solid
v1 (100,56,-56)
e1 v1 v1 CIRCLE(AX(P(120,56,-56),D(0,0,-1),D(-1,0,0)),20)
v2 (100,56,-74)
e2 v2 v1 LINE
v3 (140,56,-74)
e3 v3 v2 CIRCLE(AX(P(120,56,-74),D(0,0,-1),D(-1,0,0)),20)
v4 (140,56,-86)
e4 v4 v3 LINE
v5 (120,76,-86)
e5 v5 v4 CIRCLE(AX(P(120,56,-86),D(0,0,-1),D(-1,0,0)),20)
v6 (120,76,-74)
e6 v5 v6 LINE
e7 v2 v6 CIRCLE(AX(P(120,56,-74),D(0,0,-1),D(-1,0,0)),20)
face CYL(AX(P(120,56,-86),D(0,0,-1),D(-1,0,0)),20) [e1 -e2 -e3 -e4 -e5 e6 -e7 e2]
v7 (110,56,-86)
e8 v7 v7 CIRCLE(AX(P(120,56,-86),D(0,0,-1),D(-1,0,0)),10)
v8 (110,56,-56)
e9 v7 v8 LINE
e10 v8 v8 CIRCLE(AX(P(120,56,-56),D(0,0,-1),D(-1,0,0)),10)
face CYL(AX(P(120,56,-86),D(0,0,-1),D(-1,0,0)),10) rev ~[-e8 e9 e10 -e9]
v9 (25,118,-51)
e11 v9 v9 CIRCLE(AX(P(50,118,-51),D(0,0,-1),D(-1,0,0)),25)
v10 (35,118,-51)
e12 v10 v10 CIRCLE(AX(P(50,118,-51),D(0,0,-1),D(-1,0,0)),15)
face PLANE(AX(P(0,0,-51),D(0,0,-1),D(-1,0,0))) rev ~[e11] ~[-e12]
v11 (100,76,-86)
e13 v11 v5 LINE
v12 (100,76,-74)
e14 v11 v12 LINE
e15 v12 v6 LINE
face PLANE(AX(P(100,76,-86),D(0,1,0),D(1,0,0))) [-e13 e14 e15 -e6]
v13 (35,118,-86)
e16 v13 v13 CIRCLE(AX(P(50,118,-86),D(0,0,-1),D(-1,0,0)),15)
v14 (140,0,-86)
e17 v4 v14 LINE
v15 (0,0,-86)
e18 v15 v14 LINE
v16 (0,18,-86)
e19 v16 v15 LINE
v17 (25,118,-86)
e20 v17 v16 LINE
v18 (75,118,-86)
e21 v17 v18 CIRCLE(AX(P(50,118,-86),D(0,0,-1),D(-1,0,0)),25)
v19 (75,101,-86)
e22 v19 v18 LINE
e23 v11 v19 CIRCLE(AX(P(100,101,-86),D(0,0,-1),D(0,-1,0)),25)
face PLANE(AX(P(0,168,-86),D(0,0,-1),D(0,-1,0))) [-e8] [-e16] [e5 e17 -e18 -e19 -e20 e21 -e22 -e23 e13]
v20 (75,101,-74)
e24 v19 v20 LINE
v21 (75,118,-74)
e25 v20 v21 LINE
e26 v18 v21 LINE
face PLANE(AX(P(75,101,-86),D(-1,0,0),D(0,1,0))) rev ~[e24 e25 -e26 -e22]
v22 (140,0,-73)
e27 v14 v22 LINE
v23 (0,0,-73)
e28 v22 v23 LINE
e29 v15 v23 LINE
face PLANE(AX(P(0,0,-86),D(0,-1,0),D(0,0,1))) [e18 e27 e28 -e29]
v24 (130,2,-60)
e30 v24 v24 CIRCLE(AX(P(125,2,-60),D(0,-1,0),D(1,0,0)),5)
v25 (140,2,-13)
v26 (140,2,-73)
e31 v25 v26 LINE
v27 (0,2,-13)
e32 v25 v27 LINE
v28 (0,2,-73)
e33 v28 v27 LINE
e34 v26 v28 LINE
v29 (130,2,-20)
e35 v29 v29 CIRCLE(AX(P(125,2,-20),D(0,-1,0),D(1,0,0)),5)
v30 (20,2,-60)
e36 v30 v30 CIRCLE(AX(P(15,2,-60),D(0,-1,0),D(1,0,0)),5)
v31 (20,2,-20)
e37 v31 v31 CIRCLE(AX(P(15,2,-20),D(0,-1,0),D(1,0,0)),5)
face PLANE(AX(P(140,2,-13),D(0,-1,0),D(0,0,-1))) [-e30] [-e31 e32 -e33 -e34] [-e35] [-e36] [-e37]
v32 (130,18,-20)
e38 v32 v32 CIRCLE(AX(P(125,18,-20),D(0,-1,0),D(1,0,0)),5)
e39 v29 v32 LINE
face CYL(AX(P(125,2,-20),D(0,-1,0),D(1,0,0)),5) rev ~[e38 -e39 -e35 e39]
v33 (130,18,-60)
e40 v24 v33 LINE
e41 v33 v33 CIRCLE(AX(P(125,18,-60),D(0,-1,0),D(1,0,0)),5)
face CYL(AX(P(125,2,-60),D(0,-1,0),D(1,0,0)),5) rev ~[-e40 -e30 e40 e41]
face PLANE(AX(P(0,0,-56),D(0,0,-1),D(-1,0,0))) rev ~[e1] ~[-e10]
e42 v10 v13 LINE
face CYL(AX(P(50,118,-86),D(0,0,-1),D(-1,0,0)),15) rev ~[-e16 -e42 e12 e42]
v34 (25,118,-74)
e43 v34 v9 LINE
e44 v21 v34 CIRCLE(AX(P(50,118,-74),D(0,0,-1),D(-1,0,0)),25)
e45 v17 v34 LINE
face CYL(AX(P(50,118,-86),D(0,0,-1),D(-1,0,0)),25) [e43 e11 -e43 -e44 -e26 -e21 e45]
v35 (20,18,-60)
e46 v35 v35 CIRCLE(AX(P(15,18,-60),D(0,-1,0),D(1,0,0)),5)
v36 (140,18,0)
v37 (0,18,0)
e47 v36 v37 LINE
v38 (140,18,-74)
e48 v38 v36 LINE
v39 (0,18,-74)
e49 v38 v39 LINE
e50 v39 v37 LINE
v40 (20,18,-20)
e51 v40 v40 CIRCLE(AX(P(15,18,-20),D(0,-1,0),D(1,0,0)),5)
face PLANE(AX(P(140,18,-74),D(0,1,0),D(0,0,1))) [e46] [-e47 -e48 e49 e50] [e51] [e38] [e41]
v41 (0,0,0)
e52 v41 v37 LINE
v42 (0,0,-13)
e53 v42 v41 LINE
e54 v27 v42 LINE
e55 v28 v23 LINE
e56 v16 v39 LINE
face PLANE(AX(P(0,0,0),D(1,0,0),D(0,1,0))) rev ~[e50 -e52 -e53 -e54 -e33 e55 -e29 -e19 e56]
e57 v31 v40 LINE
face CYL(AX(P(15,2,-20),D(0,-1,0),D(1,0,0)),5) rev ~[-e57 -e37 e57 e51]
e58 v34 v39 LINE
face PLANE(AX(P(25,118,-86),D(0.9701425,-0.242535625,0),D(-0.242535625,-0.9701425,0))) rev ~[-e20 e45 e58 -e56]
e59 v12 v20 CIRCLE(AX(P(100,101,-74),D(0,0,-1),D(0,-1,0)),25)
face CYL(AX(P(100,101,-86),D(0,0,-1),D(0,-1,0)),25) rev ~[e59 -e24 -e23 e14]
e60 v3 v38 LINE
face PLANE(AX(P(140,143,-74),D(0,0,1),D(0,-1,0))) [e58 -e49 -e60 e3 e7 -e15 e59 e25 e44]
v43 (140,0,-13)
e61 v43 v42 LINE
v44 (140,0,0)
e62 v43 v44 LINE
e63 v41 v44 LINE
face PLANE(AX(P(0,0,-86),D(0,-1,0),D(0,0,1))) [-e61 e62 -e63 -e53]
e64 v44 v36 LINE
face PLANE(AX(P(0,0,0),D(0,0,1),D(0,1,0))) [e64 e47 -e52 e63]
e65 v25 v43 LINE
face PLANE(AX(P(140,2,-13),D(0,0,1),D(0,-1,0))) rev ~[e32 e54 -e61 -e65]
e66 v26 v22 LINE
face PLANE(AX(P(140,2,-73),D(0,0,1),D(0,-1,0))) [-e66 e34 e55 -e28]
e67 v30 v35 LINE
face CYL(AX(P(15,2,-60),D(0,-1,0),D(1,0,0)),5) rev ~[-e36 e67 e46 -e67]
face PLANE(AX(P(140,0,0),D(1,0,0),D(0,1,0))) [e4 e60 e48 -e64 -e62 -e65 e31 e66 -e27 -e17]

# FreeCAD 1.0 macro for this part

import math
import FreeCAD as App
import Part
import Sketcher

doc = App.newDocument("Part")
body = doc.addObject("PartDesign::Body", "Body")

# Sketch on YZ plane
sketch1 = body.newObject("Sketcher::SketchObject", "Sketch")
sketch1.AttachmentSupport = (doc.getObject("YZ_Plane"), [""])
sketch1.MapMode = "FlatFace"
sketch1.addGeometry([
    Part.LineSegment(App.Vector(168, 0, 0), App.Vector(0, 0, 0)),
    Part.LineSegment(App.Vector(0, 0, 0), App.Vector(0, -86, 0)),
    Part.LineSegment(App.Vector(0, -86, 0), App.Vector(168, -86, 0)),
    Part.LineSegment(App.Vector(168, -86, 0), App.Vector(168, 0, 0)),
], False)
sketch1.addConstraint([
    Sketcher.Constraint("Coincident", 0, 2, 1, 1),
    Sketcher.Constraint("Coincident", 1, 2, 2, 1),
    Sketcher.Constraint("Coincident", 2, 2, 3, 1),
    Sketcher.Constraint("Coincident", 3, 2, 0, 1),
    Sketcher.Constraint("Horizontal", 0),
    Sketcher.Constraint("Vertical", 1),
    Sketcher.Constraint("Horizontal", 2),
    Sketcher.Constraint("Vertical", 3),
    Sketcher.Constraint("Coincident", 0, 2, -1, 1),
    Sketcher.Constraint("DistanceX", 0, 2, 0, 1, 168.0),
    Sketcher.Constraint("DistanceY", 1, 2, 1, 1, 86.0),
])
pad1 = body.newObject("PartDesign::Pad", "Pad")
pad1.Profile = sketch1
pad1.Length = 140

# Sketch on YZ plane
sketch2 = body.newObject("Sketcher::SketchObject", "Sketch001")
sketch2.AttachmentSupport = (doc.getObject("YZ_Plane"), [""])
sketch2.MapMode = "FlatFace"
sketch2.AttachmentOffset = App.Placement(App.Vector(0, 0, 140), App.Rotation())
sketch2.addGeometry([
    Part.LineSegment(App.Vector(2, -13, 0), App.Vector(0, -13, 0)),
    Part.LineSegment(App.Vector(0, -13, 0), App.Vector(0, -73, 0)),
    Part.LineSegment(App.Vector(0, -73, 0), App.Vector(2, -73, 0)),
    Part.LineSegment(App.Vector(2, -73, 0), App.Vector(2, -13, 0)),
], False)
sketch2.addConstraint([
    Sketcher.Constraint("Coincident", 0, 2, 1, 1),
    Sketcher.Constraint("Coincident", 1, 2, 2, 1),
    Sketcher.Constraint("Coincident", 2, 2, 3, 1),
    Sketcher.Constraint("Coincident", 3, 2, 0, 1),
    Sketcher.Constraint("Horizontal", 0),
    Sketcher.Constraint("Vertical", 1),
    Sketcher.Constraint("Horizontal", 2),
    Sketcher.Constraint("Vertical", 3),
    Sketcher.Constraint("PointOnObject", 0, 2, -2),
    Sketcher.Constraint("DistanceX", 0, 2, 0, 1, 2.0),
    Sketcher.Constraint("DistanceY", 1, 2, 1, 1, 60.0),
    Sketcher.Constraint("DistanceY", 0, 2, -1, 1, 13.0),
])
pocket1 = body.newObject("PartDesign::Pocket", "Pocket")
pocket1.Profile = sketch2
pocket1.Length = 140

# Sketch on XY plane
sketch3 = body.newObject("Sketcher::SketchObject", "Sketch002")
sketch3.AttachmentSupport = (doc.getObject("XY_Plane"), [""])
sketch3.MapMode = "FlatFace"
sketch3.AttachmentOffset = App.Placement(App.Vector(0, 0, -86), App.Rotation())
sketch3.addGeometry([
    Part.LineSegment(App.Vector(140, 168, 0), App.Vector(140, 56, 0)),  # 0
    Part.ArcOfCircle(Part.Circle(App.Vector(120, 56, 0), App.Vector(0, 0, 1), 20), math.radians(0), math.radians(90)),  # 1
    Part.LineSegment(App.Vector(120, 76, 0), App.Vector(100, 76, 0)),  # 2
    Part.ArcOfCircle(Part.Circle(App.Vector(100, 101, 0), App.Vector(0, 0, 1), 25), math.radians(180), math.radians(270)),  # 3
    Part.LineSegment(App.Vector(75, 101, 0), App.Vector(75, 118, 0)),  # 4
    Part.ArcOfCircle(Part.Circle(App.Vector(50, 118, 0), App.Vector(0, 0, 1), 25), math.radians(0), math.radians(180)),  # 5
    Part.LineSegment(App.Vector(25, 118, 0), App.Vector(0, 18, 0)),  # 6
    Part.LineSegment(App.Vector(0, 18, 0), App.Vector(0, 168, 0)),  # 7
    Part.LineSegment(App.Vector(0, 168, 0), App.Vector(140, 168, 0)),  # 8
    Part.Circle(App.Vector(120, 56, 0), App.Vector(0, 0, 1), 10),  # 9
    Part.Circle(App.Vector(50, 118, 0), App.Vector(0, 0, 1), 15),  # 10
], False)
sketch3.addConstraint([
    Sketcher.Constraint("Tangent", 0, 2, 1, 1),
    Sketcher.Constraint("Tangent", 1, 2, 2, 1),
    Sketcher.Constraint("Tangent", 2, 2, 3, 2),
    Sketcher.Constraint("Tangent", 3, 1, 4, 1),
    Sketcher.Constraint("Tangent", 4, 2, 5, 1),
    Sketcher.Constraint("Coincident", 5, 2, 6, 1),
    Sketcher.Constraint("Coincident", 6, 2, 7, 1),
    Sketcher.Constraint("Coincident", 7, 2, 8, 1),
    Sketcher.Constraint("Coincident", 8, 2, 0, 1),
    Sketcher.Constraint("Vertical", 0),
    Sketcher.Constraint("Horizontal", 2),
    Sketcher.Constraint("Vertical", 4),
    Sketcher.Constraint("Vertical", 7),
    Sketcher.Constraint("Horizontal", 8),
    Sketcher.Constraint("Coincident", 9, 3, 1, 3),
    Sketcher.Constraint("Coincident", 10, 3, 5, 3),
    Sketcher.Constraint("Equal", 3, 5),
    Sketcher.Constraint("PointOnObject", 6, 2, -2),
    Sketcher.Constraint("Horizontal", 4, 2, 5, 2),
    Sketcher.Constraint("Diameter", 9, 20.0),
    Sketcher.Constraint("Diameter", 10, 30.0),
    Sketcher.Constraint("Radius", 1, 20.0),
    Sketcher.Constraint("Radius", 3, 25.0),
    Sketcher.Constraint("DistanceX", 2, 2, 2, 1, 20.0),
    Sketcher.Constraint("DistanceY", -1, 1, 1, 3, 56.0),
    Sketcher.Constraint("DistanceX", -1, 1, 5, 3, 50.0),
    Sketcher.Constraint("DistanceY", -1, 1, 5, 3, 118.0),
    Sketcher.Constraint("DistanceY", -1, 1, 6, 2, 18.0),
    Sketcher.Constraint("DistanceY", 5, 2, 7, 2, 50.0),
])
pocket2 = body.newObject("PartDesign::Pocket", "Pocket001")
pocket2.Profile = sketch3
pocket2.Length = 140
pocket2.Reversed = True

# Sketch on YZ plane
sketch4 = body.newObject("Sketcher::SketchObject", "Sketch003")
sketch4.AttachmentSupport = (doc.getObject("YZ_Plane"), [""])
sketch4.MapMode = "FlatFace"
sketch4.AttachmentOffset = App.Placement(App.Vector(0, 0, 140), App.Rotation())
sketch4.addGeometry([
    Part.LineSegment(App.Vector(18, 0, 0), App.Vector(18, -74, 0)),
    Part.LineSegment(App.Vector(18, -74, 0), App.Vector(143, -74, 0)),
    Part.LineSegment(App.Vector(143, -74, 0), App.Vector(143, 0, 0)),
    Part.LineSegment(App.Vector(143, 0, 0), App.Vector(18, 0, 0)),
], False)
sketch4.addConstraint([
    Sketcher.Constraint("Coincident", 0, 2, 1, 1),
    Sketcher.Constraint("Coincident", 1, 2, 2, 1),
    Sketcher.Constraint("Coincident", 2, 2, 3, 1),
    Sketcher.Constraint("Coincident", 3, 2, 0, 1),
    Sketcher.Constraint("Vertical", 0),
    Sketcher.Constraint("Horizontal", 1),
    Sketcher.Constraint("Vertical", 2),
    Sketcher.Constraint("Horizontal", 3),
    Sketcher.Constraint("PointOnObject", 2, 2, -1),
    Sketcher.Constraint("DistanceX", 1, 1, 1, 2, 125.0),
    Sketcher.Constraint("DistanceY", 0, 2, 0, 1, 74.0),
    Sketcher.Constraint("DistanceX", -1, 1, 0, 2, 18.0),
])
pocket3 = body.newObject("PartDesign::Pocket", "Pocket002")
pocket3.Profile = sketch4
pocket3.Length = 140

# Sketch on XY plane
sketch5 = body.newObject("Sketcher::SketchObject", "Sketch004")
sketch5.AttachmentSupport = (doc.getObject("XY_Plane"), [""])
sketch5.MapMode = "FlatFace"
sketch5.AttachmentOffset = App.Placement(App.Vector(0, 0, -86), App.Rotation())
sketch5.addGeometry([
    Part.Circle(App.Vector(50, 118, 0), App.Vector(0, 0, 1), 25),
    Part.Circle(App.Vector(50, 118, 0), App.Vector(0, 0, 1), 15),
], False)
sketch5.addConstraint([
    Sketcher.Constraint("Coincident", 1, 3, 0, 3),
    Sketcher.Constraint("Diameter", 0, 50.0),
    Sketcher.Constraint("Diameter", 1, 30.0),
    Sketcher.Constraint("DistanceX", -1, 1, 0, 3, 50.0),
    Sketcher.Constraint("DistanceY", -1, 1, 0, 3, 118.0),
])
pad2 = body.newObject("PartDesign::Pad", "Pad001")
pad2.Profile = sketch5
pad2.Length = 35

# Sketch on XY plane
sketch6 = body.newObject("Sketcher::SketchObject", "Sketch005")
sketch6.AttachmentSupport = (doc.getObject("XY_Plane"), [""])
sketch6.MapMode = "FlatFace"
sketch6.AttachmentOffset = App.Placement(App.Vector(0, 0, -86), App.Rotation())
sketch6.addGeometry(Part.Circle(App.Vector(120, 56, 0), App.Vector(0, 0, 1), 20), False)
sketch6.addConstraint([
    Sketcher.Constraint("Diameter", 0, 40.0),
    Sketcher.Constraint("DistanceY", -1, 1, 0, 3, 56.0),
    Sketcher.Constraint("DistanceX", -1, 1, 0, 3, 120.0),
])
pad3 = body.newObject("PartDesign::Pad", "Pad002")
pad3.Profile = sketch6
pad3.Length = 30

# Sketch on XY plane
sketch7 = body.newObject("Sketcher::SketchObject", "Sketch006")
sketch7.AttachmentSupport = (doc.getObject("XY_Plane"), [""])
sketch7.MapMode = "FlatFace"
sketch7.AttachmentOffset = App.Placement(App.Vector(0, 0, -86), App.Rotation())
sketch7.addGeometry(Part.Circle(App.Vector(120, 56, 0), App.Vector(0, 0, 1), 10), False)
sketch7.addConstraint([
    Sketcher.Constraint("Diameter", 0, 20.0),
    Sketcher.Constraint("DistanceY", -1, 1, 0, 3, 56.0),
    Sketcher.Constraint("DistanceX", -1, 1, 0, 3, 120.0),
])
pocket4 = body.newObject("PartDesign::Pocket", "Pocket003")
pocket4.Profile = sketch7
pocket4.Length = 30
pocket4.Reversed = True

# Sketch on XZ plane
sketch8 = body.newObject("Sketcher::SketchObject", "Sketch007")
sketch8.AttachmentSupport = (doc.getObject("XZ_Plane"), [""])
sketch8.MapMode = "FlatFace"
sketch8.AttachmentOffset = App.Placement(App.Vector(0, 0, -2), App.Rotation())
sketch8.addGeometry([
    Part.Circle(App.Vector(125, -20, 0), App.Vector(0, 0, 1), 5),
    Part.Circle(App.Vector(15, -20, 0), App.Vector(0, 0, 1), 5),
    Part.Circle(App.Vector(15, -60, 0), App.Vector(0, 0, 1), 5),
    Part.Circle(App.Vector(125, -60, 0), App.Vector(0, 0, 1), 5),
], False)
sketch8.addConstraint([
    Sketcher.Constraint("Equal", 0, 1),
    Sketcher.Constraint("Equal", 1, 2),
    Sketcher.Constraint("Equal", 2, 3),
    Sketcher.Constraint("Horizontal", 0, 3, 1, 3),
    Sketcher.Constraint("Horizontal", 2, 3, 3, 3),
    Sketcher.Constraint("Vertical", 1, 3, 2, 3),
    Sketcher.Constraint("Vertical", 0, 3, 3, 3),
    Sketcher.Constraint("Diameter", 0, 10.0),
    Sketcher.Constraint("DistanceX", -1, 1, 0, 3, 125.0),
    Sketcher.Constraint("DistanceY", 0, 3, -1, 1, 20.0),
    Sketcher.Constraint("DistanceX", -1, 1, 1, 3, 15.0),
    Sketcher.Constraint("DistanceY", 2, 3, 1, 3, 40.0),
])
pocket5 = body.newObject("PartDesign::Pocket", "Pocket004")
pocket5.Profile = sketch8
pocket5.Length = 30

doc.recompute()
